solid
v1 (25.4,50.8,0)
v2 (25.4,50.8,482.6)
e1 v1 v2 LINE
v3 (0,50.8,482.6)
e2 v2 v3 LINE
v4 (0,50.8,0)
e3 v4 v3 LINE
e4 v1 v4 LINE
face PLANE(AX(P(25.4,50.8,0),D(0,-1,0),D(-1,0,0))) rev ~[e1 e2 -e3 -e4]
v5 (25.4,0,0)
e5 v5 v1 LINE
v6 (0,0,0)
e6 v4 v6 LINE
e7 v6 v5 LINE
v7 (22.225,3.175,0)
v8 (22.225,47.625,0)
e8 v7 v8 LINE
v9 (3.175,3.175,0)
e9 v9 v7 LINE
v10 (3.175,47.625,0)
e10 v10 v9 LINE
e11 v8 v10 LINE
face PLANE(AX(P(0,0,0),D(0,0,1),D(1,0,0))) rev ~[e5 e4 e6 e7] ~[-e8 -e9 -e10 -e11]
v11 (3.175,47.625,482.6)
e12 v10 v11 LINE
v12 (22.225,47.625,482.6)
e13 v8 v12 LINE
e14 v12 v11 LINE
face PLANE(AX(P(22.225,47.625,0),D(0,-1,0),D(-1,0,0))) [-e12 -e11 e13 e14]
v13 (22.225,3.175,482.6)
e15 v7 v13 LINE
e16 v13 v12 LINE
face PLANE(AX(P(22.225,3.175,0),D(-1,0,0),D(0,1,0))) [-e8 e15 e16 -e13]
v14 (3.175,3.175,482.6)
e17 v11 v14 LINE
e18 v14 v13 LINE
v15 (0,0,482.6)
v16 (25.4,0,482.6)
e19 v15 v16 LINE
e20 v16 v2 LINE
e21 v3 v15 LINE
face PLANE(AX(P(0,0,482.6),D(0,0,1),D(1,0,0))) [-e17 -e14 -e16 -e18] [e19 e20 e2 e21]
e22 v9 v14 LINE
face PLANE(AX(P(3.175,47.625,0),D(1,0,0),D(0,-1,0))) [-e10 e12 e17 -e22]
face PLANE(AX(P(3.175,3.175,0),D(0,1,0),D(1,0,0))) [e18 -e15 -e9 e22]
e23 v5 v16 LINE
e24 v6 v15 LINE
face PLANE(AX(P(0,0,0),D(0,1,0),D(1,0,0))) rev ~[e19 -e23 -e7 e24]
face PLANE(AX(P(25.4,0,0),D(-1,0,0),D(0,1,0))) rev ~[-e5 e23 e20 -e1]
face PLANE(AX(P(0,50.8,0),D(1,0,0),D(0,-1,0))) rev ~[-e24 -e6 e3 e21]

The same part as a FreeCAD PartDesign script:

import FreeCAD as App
import Part
import Sketcher
from FreeCAD import Vector
Q = App.Units.Quantity


def add_polygon(sketch, points):
    """Adds a closed chain of lines whose ends are joined by coincident constraints."""
    first, n = sketch.GeometryCount, len(points)
    for a, b in zip(points, points[1:] + points[:1]):
        sketch.addGeometry(Part.LineSegment(App.Vector(*a, 0), App.Vector(*b, 0)), False)
    for i in range(n):
        sketch.addConstraint(Sketcher.Constraint("Coincident", first + i, 2, first + (i + 1) % n, 1))

doc = App.newDocument("Part")
body = doc.addObject("PartDesign::Body", "Body")

# Sketch on XY plane
sketch1 = doc.addObject("Sketcher::SketchObject", "Sketch")
body.addObject(sketch1)
sketch1.AttachmentSupport = (doc.XY_Plane, [""])
sketch1.MapMode = "FlatFace"
add_polygon(sketch1, [(0, 51), (0, 0), (25, 0), (25, 51)])  # lines 0-3
add_polygon(sketch1, [(22, 3), (3, 3), (3, 48), (22, 48)])  # lines 4-7
sketch1.addConstraint([
    Sketcher.Constraint("Vertical", 0),
    Sketcher.Constraint("Horizontal", 1),
    Sketcher.Constraint("Vertical", 2),
    Sketcher.Constraint("Horizontal", 3),
    Sketcher.Constraint("Horizontal", 4),
    Sketcher.Constraint("Vertical", 5),
    Sketcher.Constraint("Horizontal", 6),
    Sketcher.Constraint("Vertical", 7),
    Sketcher.Constraint("Coincident", 0, 2, -1, 1),
    Sketcher.Constraint("DistanceX", 1, 1, 1, 2, Q("1 in")),
    Sketcher.Constraint("DistanceY", 0, 2, 0, 1, Q("2 in")),
    Sketcher.Constraint("DistanceX", -1, 1, 4, 2, Q("0.125 in")),
    Sketcher.Constraint("DistanceY", -1, 1, 4, 2, Q("0.125 in")),
    Sketcher.Constraint("DistanceY", 5, 2, 3, 2, Q("0.125 in")),
    Sketcher.Constraint("DistanceX", 6, 2, 2, 2, Q("0.125 in")),
])
pad1 = doc.addObject("PartDesign::Pad", "Pad")
body.addObject(pad1)
pad1.Profile = sketch1
pad1.Length = Q("19 in")

doc.recompute()
